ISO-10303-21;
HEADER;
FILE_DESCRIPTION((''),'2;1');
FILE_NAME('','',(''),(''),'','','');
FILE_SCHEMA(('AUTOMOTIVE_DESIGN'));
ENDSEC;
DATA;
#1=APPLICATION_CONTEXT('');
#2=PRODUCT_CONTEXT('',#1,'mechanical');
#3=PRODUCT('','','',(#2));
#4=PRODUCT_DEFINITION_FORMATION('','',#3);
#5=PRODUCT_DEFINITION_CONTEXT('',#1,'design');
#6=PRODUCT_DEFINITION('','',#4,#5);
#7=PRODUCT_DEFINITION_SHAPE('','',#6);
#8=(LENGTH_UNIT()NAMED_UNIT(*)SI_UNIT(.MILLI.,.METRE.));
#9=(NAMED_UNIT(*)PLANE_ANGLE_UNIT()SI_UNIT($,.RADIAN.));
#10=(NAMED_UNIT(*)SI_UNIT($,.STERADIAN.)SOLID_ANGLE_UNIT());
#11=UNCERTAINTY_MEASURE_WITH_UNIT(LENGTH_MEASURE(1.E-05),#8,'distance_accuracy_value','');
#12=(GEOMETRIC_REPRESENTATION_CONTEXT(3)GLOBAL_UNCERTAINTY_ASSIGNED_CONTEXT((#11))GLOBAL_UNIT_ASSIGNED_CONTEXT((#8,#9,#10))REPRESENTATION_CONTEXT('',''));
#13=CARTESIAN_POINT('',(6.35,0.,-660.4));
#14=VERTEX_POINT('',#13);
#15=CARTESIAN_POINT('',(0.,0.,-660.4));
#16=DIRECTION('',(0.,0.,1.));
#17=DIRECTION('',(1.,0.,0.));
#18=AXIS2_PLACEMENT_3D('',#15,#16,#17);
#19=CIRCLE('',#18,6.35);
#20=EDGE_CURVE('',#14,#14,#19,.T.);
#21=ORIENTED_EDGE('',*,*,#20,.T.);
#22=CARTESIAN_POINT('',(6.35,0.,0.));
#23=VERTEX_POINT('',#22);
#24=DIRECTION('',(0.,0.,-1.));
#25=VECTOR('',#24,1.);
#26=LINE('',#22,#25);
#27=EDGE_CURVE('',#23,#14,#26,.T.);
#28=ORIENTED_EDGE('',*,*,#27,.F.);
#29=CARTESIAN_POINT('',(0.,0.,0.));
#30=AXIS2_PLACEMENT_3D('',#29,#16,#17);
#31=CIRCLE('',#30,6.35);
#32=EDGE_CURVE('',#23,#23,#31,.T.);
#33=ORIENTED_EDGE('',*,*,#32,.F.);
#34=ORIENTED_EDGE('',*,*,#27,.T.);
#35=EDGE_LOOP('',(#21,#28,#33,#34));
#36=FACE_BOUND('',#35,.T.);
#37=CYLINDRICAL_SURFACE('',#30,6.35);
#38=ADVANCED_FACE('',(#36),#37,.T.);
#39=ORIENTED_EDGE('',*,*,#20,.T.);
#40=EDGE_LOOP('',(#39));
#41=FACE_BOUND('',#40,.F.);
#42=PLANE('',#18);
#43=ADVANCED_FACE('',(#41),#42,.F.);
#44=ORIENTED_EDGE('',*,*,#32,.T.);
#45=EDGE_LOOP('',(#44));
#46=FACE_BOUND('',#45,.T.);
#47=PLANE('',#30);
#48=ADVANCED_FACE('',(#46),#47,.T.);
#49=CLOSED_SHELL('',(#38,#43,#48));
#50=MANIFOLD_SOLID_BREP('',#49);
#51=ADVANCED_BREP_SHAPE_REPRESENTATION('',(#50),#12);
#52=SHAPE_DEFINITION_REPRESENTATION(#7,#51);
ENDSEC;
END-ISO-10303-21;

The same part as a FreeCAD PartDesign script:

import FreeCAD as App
import Part
import Sketcher
Q = App.Units.Quantity

doc = App.newDocument("Part")
body = doc.addObject("PartDesign::Body", "Body")

# Sketch on XY plane
sketch1 = body.newObject("Sketcher::SketchObject", "Sketch")
sketch1.AttachmentSupport = (doc.getObject("XY_Plane"), [""])
sketch1.MapMode = "FlatFace"
sketch1.addGeometry(Part.Circle(App.Vector(0, 0, 0), App.Vector(0, 0, 1), 6.35), False)
sketch1.addConstraint(Sketcher.Constraint("Coincident", 0, 3, -1, 1))
sketch1.addConstraint(Sketcher.Constraint("Diameter", 0, Q("0.5 in")))
pad1 = body.newObject("PartDesign::Pad", "Pad")
pad1.Profile = sketch1
pad1.Length = Q("26 in")
pad1.Reversed = True

doc.recompute()
